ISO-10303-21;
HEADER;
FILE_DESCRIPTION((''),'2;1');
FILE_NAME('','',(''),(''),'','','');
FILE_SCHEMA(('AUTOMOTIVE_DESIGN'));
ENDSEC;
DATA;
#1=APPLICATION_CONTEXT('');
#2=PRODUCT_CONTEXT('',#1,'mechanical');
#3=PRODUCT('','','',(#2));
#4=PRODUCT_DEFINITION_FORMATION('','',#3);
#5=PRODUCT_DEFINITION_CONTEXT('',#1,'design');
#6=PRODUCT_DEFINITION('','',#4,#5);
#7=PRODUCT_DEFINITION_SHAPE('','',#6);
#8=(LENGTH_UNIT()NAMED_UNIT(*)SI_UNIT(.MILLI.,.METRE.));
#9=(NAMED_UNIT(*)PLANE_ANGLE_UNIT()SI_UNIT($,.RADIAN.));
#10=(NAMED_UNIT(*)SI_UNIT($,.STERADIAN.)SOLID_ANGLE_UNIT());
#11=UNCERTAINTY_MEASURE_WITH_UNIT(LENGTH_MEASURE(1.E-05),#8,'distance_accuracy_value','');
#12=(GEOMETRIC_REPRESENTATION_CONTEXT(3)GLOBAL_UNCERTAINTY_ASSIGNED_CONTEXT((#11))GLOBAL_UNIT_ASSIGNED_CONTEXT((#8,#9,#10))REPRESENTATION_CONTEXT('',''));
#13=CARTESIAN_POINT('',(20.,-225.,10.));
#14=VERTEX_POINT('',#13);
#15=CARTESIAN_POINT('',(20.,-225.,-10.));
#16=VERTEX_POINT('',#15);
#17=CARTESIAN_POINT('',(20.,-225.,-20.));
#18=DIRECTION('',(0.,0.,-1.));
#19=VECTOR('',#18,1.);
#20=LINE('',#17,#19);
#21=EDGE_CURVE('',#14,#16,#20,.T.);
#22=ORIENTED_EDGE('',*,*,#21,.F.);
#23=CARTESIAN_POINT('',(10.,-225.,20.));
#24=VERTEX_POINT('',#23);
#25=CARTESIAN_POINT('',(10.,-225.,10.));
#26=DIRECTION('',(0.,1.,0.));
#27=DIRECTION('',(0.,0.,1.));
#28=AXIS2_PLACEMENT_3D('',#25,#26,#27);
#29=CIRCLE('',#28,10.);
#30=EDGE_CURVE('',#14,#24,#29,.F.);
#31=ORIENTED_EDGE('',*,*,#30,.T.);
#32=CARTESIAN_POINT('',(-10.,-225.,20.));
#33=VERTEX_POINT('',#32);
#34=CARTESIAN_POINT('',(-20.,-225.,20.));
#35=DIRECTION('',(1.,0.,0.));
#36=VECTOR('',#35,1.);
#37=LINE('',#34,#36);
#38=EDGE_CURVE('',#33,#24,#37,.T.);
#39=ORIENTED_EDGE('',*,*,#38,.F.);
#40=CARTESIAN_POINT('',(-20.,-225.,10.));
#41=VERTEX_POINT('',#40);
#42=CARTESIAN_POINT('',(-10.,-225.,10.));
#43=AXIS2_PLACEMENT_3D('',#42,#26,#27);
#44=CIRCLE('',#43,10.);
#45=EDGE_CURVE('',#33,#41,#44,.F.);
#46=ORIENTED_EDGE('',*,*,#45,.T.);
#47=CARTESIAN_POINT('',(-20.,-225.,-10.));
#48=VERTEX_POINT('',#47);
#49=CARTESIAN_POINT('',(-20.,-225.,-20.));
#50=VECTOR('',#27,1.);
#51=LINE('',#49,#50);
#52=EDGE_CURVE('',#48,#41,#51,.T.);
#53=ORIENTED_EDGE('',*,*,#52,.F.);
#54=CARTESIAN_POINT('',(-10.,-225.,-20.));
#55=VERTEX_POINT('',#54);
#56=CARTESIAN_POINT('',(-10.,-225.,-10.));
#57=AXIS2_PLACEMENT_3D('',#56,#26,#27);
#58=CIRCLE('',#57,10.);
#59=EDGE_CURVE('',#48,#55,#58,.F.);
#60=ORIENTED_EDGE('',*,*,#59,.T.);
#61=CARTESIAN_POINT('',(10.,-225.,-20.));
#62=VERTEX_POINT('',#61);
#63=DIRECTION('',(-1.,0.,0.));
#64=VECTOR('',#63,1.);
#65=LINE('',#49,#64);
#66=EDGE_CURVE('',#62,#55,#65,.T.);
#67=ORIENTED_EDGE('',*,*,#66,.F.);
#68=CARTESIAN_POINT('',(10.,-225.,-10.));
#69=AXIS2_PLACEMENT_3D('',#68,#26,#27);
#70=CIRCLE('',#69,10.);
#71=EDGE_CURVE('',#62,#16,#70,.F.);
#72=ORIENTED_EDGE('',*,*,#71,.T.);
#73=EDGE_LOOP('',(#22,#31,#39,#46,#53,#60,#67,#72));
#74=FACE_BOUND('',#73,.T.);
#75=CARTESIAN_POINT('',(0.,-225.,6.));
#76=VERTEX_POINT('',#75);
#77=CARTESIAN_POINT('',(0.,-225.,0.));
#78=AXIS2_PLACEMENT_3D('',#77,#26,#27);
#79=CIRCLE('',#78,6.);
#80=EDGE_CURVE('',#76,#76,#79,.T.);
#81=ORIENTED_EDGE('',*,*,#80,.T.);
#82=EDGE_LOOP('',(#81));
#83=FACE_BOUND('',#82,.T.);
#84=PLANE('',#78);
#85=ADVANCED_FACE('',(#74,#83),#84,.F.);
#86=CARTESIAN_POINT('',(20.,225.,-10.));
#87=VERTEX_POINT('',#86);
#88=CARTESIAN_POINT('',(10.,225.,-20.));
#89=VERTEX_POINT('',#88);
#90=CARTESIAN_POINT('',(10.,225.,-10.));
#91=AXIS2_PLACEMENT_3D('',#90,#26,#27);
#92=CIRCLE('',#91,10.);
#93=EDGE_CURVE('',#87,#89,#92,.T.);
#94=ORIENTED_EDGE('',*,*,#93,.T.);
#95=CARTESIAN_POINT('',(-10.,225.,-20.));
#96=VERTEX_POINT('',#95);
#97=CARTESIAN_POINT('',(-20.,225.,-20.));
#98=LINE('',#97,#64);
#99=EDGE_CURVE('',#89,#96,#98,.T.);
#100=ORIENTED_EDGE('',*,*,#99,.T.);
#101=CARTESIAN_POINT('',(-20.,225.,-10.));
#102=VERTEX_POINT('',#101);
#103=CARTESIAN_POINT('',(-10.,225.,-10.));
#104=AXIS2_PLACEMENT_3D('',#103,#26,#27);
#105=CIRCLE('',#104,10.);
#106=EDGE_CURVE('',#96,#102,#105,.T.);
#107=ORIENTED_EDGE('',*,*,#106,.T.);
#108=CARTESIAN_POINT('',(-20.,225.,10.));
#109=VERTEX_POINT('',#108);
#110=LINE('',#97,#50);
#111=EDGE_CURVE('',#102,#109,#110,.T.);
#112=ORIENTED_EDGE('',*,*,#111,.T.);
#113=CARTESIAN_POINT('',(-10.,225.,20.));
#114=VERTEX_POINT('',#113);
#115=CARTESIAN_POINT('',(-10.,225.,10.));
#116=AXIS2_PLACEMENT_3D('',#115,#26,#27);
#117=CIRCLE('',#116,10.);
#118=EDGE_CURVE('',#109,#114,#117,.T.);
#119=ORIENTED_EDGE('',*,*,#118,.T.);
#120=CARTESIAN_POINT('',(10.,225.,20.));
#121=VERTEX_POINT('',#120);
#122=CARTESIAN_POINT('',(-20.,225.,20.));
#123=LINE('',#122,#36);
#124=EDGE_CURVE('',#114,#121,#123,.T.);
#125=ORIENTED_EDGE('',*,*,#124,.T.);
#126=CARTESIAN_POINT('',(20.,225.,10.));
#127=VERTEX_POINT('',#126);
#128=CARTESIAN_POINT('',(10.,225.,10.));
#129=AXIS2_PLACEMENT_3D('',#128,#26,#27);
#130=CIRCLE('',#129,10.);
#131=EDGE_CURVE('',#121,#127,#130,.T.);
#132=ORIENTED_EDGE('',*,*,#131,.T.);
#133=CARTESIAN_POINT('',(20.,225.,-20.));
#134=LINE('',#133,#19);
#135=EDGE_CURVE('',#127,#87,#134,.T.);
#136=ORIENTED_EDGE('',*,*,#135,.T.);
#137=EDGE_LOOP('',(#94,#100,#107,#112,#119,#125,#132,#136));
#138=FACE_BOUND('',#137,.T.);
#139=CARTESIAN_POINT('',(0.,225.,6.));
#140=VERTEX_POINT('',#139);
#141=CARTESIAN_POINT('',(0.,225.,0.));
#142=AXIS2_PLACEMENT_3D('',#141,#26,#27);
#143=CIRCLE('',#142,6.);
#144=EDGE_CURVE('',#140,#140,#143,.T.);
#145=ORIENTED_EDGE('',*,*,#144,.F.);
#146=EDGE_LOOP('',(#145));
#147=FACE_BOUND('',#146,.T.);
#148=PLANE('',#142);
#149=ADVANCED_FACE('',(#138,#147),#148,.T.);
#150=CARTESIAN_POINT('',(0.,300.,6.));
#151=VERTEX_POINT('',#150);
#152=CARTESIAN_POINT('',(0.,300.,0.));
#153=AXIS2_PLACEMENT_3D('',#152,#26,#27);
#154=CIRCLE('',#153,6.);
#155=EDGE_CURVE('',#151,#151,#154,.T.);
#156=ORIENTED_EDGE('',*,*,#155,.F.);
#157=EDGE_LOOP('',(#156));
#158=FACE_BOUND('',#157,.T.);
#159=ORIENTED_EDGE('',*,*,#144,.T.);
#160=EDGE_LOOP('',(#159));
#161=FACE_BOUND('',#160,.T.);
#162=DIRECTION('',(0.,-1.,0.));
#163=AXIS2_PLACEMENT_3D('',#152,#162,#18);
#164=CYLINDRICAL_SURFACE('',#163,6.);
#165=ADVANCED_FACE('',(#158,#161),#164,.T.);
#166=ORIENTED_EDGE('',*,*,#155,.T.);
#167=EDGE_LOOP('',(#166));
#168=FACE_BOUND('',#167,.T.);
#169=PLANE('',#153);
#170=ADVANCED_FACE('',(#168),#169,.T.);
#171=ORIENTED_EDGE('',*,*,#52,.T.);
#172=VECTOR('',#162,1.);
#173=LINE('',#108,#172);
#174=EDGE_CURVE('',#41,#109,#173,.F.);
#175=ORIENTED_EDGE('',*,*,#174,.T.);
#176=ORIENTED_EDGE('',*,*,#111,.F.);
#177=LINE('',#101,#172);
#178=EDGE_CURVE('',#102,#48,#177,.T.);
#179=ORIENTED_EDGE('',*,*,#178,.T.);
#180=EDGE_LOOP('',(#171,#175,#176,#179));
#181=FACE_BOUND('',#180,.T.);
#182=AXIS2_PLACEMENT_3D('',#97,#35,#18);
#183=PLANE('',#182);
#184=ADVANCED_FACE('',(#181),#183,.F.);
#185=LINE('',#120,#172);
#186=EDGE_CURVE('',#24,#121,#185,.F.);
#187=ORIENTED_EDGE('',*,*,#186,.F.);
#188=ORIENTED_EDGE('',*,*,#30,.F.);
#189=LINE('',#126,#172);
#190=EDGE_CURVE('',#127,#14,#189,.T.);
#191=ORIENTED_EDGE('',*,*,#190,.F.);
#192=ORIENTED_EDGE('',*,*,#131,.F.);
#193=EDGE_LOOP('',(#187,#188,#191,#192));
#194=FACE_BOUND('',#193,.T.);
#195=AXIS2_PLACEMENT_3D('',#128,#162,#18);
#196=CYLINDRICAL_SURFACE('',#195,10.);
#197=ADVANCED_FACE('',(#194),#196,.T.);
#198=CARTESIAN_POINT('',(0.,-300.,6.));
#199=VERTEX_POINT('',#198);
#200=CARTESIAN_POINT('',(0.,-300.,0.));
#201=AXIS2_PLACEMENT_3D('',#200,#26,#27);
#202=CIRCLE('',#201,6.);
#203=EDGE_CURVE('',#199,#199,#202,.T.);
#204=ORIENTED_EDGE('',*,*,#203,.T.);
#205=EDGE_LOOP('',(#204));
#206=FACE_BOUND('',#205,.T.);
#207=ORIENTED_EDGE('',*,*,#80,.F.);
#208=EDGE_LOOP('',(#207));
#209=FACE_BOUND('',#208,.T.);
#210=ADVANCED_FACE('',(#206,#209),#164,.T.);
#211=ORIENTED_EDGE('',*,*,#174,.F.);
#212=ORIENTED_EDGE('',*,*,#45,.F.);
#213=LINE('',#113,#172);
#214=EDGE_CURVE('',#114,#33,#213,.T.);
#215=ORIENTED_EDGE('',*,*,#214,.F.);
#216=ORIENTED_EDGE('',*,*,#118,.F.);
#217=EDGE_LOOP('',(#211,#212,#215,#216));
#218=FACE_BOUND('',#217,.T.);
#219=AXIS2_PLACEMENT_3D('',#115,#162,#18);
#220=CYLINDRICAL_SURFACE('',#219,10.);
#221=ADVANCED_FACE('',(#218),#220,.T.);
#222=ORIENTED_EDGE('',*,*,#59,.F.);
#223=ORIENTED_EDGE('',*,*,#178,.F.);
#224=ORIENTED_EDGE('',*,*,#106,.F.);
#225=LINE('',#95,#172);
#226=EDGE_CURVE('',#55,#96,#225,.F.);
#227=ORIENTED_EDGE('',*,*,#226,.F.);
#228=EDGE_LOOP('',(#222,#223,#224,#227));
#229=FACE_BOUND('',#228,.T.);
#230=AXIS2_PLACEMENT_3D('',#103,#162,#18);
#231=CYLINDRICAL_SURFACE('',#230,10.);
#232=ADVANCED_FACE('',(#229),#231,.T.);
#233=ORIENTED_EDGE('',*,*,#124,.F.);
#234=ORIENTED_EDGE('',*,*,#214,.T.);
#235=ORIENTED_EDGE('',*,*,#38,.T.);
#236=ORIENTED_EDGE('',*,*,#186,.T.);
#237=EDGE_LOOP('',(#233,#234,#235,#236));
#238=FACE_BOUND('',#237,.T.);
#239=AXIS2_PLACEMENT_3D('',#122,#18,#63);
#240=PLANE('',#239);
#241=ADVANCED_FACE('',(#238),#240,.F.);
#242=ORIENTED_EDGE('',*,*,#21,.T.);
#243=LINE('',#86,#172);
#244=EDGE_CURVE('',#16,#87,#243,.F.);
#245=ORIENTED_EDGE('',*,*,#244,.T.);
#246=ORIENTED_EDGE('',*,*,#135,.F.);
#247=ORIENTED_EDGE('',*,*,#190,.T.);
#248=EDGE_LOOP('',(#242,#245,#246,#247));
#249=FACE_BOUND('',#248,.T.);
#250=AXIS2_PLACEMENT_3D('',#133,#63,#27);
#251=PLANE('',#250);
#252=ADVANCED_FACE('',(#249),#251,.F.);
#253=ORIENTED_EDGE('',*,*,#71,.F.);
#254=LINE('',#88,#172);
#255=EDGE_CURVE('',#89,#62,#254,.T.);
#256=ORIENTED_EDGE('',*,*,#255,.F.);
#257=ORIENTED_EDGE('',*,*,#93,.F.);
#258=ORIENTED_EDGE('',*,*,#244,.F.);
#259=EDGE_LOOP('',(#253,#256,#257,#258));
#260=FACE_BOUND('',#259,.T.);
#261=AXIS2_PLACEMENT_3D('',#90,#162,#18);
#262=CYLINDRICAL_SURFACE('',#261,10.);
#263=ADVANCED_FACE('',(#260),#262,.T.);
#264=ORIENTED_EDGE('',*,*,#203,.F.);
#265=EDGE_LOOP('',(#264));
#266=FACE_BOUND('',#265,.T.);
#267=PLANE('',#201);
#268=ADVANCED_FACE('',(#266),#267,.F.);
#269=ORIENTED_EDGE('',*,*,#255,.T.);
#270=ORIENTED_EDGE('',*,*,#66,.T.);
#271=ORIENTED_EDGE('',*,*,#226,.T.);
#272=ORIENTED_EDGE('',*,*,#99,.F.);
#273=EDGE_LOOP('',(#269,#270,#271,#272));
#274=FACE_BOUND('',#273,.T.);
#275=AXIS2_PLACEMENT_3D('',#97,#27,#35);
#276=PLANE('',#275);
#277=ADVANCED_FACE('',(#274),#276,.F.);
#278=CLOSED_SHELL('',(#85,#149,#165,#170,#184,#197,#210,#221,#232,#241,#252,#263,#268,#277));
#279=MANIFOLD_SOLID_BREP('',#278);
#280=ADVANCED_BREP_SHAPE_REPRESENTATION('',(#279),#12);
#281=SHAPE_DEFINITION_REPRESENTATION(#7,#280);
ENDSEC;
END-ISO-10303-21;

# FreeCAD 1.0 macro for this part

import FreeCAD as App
import Part
import Sketcher
from FreeCAD import Vector
Q = App.Units.Quantity


def edges_at(feature, points):
    """Names of the edges that pass closest to the given points."""
    edges = feature.Shape.Edges
    near = lambda p: min(range(len(edges)), key=lambda i: edges[i].distToShape(Part.Vertex(*p))[0])
    return sorted({f"Edge{near(p) + 1}" for p in points})


def add_polygon(sketch, points):
    """Adds a closed chain of lines whose ends are joined by coincident constraints."""
    first, n = sketch.GeometryCount, len(points)
    for a, b in zip(points, points[1:] + points[:1]):
        sketch.addGeometry(Part.LineSegment(App.Vector(*a, 0), App.Vector(*b, 0)), False)
    for i in range(n):
        sketch.addConstraint(Sketcher.Constraint("Coincident", first + i, 2, first + (i + 1) % n, 1))

doc = App.newDocument("Part")
body = doc.addObject("PartDesign::Body", "Body")

sketch1 = doc.addObject("Sketcher::SketchObject", "Sketch")
body.addObject(sketch1)
sketch1.AttachmentSupport = (doc.XZ_Plane, [""])
sketch1.MapMode = "FlatFace"
sketch1.addGeometry(Part.Circle(Vector(0, 0, 0), Vector(0, 0, 1), 6), False)
sketch1.addConstraint(Sketcher.Constraint("Coincident", 0, 3, -1, 1))
sketch1.addConstraint(Sketcher.Constraint("Diameter", 0, Q("12 mm")))
pad1 = doc.addObject("PartDesign::Pad", "Pad")
body.addObject(pad1)
pad1.Profile = sketch1
pad1.Length = 600
pad1.Midplane = True

sketch2 = doc.addObject("Sketcher::SketchObject", "Sketch001")
body.addObject(sketch2)
sketch2.AttachmentSupport = (doc.XZ_Plane, [""])
sketch2.MapMode = "FlatFace"
add_polygon(sketch2, [(-20, -20), (-20, 20), (20, 20), (20, -20)])
sketch2.addConstraint(Sketcher.Constraint("Vertical", 0))
sketch2.addConstraint(Sketcher.Constraint("Horizontal", 1))
sketch2.addConstraint(Sketcher.Constraint("Vertical", 2))
sketch2.addConstraint(Sketcher.Constraint("Horizontal", 3))
sketch2.addConstraint(Sketcher.Constraint("Symmetric", 0, 2, 2, 2, -1, 1))
sketch2.addConstraint(Sketcher.Constraint("Equal", 3, 0))
sketch2.addConstraint(Sketcher.Constraint("DistanceX", 1, 1, 1, 2, Q("40 mm")))
pad2 = doc.addObject("PartDesign::Pad", "Pad001")
body.addObject(pad2)
pad2.Profile = sketch2
pad2.Length = 450
pad2.Midplane = True
doc.recompute()

fillet = doc.addObject("PartDesign::Fillet", "Fillet")
body.addObject(fillet)
fillet.Base = (pad2, edges_at(pad2, [
    (20, 0, 20),
    (20, 0, -20),
    (-20, 0, -20),
    (-20, 0, 20),
]))
fillet.Radius = 10

doc.recompute()
